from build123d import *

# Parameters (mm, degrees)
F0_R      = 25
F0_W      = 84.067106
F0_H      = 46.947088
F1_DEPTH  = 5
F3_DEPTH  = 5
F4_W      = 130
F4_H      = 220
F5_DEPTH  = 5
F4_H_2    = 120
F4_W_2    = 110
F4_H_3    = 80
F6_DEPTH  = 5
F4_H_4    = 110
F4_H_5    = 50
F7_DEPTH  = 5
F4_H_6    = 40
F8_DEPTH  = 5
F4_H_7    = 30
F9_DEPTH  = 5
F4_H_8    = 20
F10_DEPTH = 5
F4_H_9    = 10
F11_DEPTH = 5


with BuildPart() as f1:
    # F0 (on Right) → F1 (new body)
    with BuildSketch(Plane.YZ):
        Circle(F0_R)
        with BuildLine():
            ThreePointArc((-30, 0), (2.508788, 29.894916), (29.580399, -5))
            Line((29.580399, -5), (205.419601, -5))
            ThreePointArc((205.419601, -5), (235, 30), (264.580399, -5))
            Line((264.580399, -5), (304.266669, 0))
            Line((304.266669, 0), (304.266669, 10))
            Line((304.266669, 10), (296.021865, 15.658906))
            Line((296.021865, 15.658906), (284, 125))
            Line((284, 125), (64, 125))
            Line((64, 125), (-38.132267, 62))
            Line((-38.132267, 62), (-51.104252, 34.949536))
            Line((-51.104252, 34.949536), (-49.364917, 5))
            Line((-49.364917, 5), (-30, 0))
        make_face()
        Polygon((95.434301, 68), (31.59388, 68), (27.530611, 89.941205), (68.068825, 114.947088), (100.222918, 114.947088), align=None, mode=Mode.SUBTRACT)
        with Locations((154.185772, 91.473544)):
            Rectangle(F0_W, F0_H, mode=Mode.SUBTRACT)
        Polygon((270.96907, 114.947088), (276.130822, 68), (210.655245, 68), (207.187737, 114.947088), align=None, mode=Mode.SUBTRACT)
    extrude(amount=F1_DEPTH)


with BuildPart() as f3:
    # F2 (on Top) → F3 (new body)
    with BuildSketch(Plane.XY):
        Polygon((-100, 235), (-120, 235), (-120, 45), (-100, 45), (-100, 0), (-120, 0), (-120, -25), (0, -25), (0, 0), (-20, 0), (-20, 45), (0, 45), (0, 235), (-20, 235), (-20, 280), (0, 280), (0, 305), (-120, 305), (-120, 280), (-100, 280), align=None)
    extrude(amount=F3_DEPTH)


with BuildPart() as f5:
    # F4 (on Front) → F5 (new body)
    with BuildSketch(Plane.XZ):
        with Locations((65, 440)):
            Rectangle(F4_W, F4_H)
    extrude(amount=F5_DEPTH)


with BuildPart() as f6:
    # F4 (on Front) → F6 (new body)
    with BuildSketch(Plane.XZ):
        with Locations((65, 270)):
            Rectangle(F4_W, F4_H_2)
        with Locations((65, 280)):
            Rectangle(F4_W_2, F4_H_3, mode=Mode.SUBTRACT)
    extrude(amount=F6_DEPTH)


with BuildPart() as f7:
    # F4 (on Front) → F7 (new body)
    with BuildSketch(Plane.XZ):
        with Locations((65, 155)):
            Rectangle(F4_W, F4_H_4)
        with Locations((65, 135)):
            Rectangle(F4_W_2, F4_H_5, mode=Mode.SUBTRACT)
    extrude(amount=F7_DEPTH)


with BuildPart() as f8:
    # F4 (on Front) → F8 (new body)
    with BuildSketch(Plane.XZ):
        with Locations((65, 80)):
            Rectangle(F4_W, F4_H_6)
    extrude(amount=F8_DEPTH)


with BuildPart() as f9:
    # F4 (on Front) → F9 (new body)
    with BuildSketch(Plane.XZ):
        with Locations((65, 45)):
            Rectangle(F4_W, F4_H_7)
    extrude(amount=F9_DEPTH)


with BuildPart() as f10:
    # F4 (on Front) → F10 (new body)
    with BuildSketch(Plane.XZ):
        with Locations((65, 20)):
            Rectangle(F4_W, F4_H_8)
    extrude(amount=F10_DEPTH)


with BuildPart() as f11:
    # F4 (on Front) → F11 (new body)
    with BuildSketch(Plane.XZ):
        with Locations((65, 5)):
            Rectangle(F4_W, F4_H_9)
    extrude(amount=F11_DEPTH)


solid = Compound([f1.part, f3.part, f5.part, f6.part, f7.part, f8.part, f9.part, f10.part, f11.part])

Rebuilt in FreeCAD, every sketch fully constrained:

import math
import FreeCAD as App
import Part
import Sketcher

V = App.Vector
Q = App.Units.Quantity


def add_polygon(sketch, points):
    """Adds a closed chain of lines whose ends are joined by coincident constraints."""
    first, n = sketch.GeometryCount, len(points)
    for a, b in zip(points, points[1:] + points[:1]):
        sketch.addGeometry(Part.LineSegment(App.Vector(*a, 0), App.Vector(*b, 0)), False)
    for i in range(n):
        sketch.addConstraint(Sketcher.Constraint("Coincident", first + i, 2, first + (i + 1) % n, 1))

doc = App.newDocument("Part")
body = doc.addObject("PartDesign::Body", "Body")
body.AllowCompound = True

sketch1 = doc.addObject("Sketcher::SketchObject", "Sketch")
body.addObject(sketch1)
sketch1.AttachmentSupport = (doc.YZ_Plane, [""])
sketch1.MapMode = "FlatFace"
sketch1.addGeometry(Part.Circle(V(0, 0, 0), V(0, 0, 1), 25), False)
sketch1.addGeometry(Part.ArcOfCircle(Part.Circle(V(0, 0, 0), V(0, 0, 1), 30), math.radians(-10), math.radians(180)), False)
sketch1.addGeometry(Part.LineSegment(V(30, -5, 0), V(205, -5, 0)), False)
sketch1.addGeometry(Part.ArcOfCircle(Part.Circle(V(235, 0, 0), V(0, 0, 1), 30), math.radians(-10), math.radians(190)), False)
sketch1.addGeometry(Part.LineSegment(V(265, -5, 0), V(304, 0, 0)), False)
sketch1.addGeometry(Part.LineSegment(V(304, 0, 0), V(304, 10, 0)), False)
sketch1.addGeometry(Part.LineSegment(V(304, 10, 0), V(296, 16, 0)), False)
sketch1.addGeometry(Part.LineSegment(V(296, 16, 0), V(284, 125, 0)), False)
sketch1.addGeometry(Part.LineSegment(V(284, 125, 0), V(64, 125, 0)), False)
sketch1.addGeometry(Part.LineSegment(V(64, 125, 0), V(-38, 62, 0)), False)
sketch1.addGeometry(Part.LineSegment(V(-38, 62, 0), V(-51, 35, 0)), False)
sketch1.addGeometry(Part.LineSegment(V(-51, 35, 0), V(-49, 5, 0)), False)
sketch1.addGeometry(Part.LineSegment(V(-49, 5, 0), V(-30, 0, 0)), False)
add_polygon(sketch1, [(100, 115), (95, 68), (32, 68), (28, 90), (68, 115)])
add_polygon(sketch1, [(196, 68), (112, 68), (112, 115), (196, 115)])
add_polygon(sketch1, [(207, 115), (271, 115), (276, 68), (211, 68)])
sketch1.addConstraint([
    Sketcher.Constraint("Coincident", 1, 1, 2, 1),
    Sketcher.Constraint("Coincident", 2, 2, 3, 2),
    Sketcher.Constraint("Coincident", 3, 1, 4, 1),
    Sketcher.Constraint("Coincident", 4, 2, 5, 1),
    Sketcher.Constraint("Coincident", 5, 2, 6, 1),
    Sketcher.Constraint("Coincident", 6, 2, 7, 1),
    Sketcher.Constraint("Coincident", 7, 2, 8, 1),
    Sketcher.Constraint("Coincident", 8, 2, 9, 1),
    Sketcher.Constraint("Coincident", 9, 2, 10, 1),
    Sketcher.Constraint("Coincident", 10, 2, 11, 1),
    Sketcher.Constraint("Coincident", 11, 2, 12, 1),
    Sketcher.Constraint("Coincident", 12, 2, 1, 2),
    Sketcher.Constraint("Horizontal", 2),
    Sketcher.Constraint("Vertical", 5),
    Sketcher.Constraint("Horizontal", 8),
    Sketcher.Constraint("Horizontal", 14),
    Sketcher.Constraint("Horizontal", 17),
    Sketcher.Constraint("Horizontal", 18),
    Sketcher.Constraint("Vertical", 19),
    Sketcher.Constraint("Horizontal", 20),
    Sketcher.Constraint("Vertical", 21),
    Sketcher.Constraint("Horizontal", 22),
    Sketcher.Constraint("Horizontal", 24),
    Sketcher.Constraint("Coincident", 0, 3, -1, 1),
    Sketcher.Constraint("Coincident", 1, 3, -1, 1),
    Sketcher.Constraint("Equal", 1, 3),
    Sketcher.Constraint("PointOnObject", 3, 3, -1),
    Sketcher.Constraint("PointOnObject", 4, 2, -1),
    Sketcher.Constraint("PointOnObject", 12, 2, -1),
    Sketcher.Constraint("Parallel", 9, 16),
    Sketcher.Constraint("Parallel", 7, 23),
    Sketcher.Constraint("Horizontal", 2, 2, 3, 1),
    Sketcher.Constraint("Horizontal", 14, 2, 18, 2),
    Sketcher.Constraint("Horizontal", 17, 2, 19, 2),
    Sketcher.Constraint("Horizontal", 20, 2, 22, 2),
    Sketcher.Constraint("Horizontal", 21, 2, 23, 2),
    Sketcher.Constraint("Equal", 10, 11),
    Sketcher.Constraint("Diameter", 0, Q("50 mm")),
    Sketcher.Constraint("Radius", 1, Q("30 mm")),
    Sketcher.Constraint("DistanceX", 8, 2, 8, 1, Q("220 mm")),
    Sketcher.Constraint("DistanceY", 5, 1, 5, 2, Q("10 mm")),
    Sketcher.Constraint("Distance", 4, Q("40 mm")),
    Sketcher.Constraint("Distance", 6, Q("10.000001 mm")),
    Sketcher.Constraint("Distance", 7, Q("110 mm")),
    Sketcher.Constraint("Distance", 9, Q("120 mm")),
    Sketcher.Constraint("Distance", 10, Q("30 mm")),
    Sketcher.Constraint("Distance", 12, Q("20 mm")),
    Sketcher.Constraint("DistanceX", -1, 1, 3, 3, Q("235 mm")),
    Sketcher.Constraint("DistanceY", 1, 1, -1, 1, Q("5 mm")),
    Sketcher.Constraint("DistanceX", -1, 1, 7, 2, Q("284 mm")),
    Sketcher.Constraint("DistanceY", -1, 1, 7, 2, Q("125 mm")),
    Sketcher.Constraint("DistanceY", -1, 1, 9, 2, Q("62 mm")),
    Sketcher.Constraint("DistanceY", -1, 1, 11, 2, Q("5 mm")),
    Sketcher.Constraint("DistanceY", -1, 1, 13, 2, Q("68 mm")),
    Sketcher.Constraint("Distance", 23, Q("47.229998 mm")),
    Sketcher.Constraint("DistanceX", 14, 2, 14, 1, Q("63.840421 mm")),
    Sketcher.Constraint("DistanceX", -1, 1, 13, 2, Q("95.434301 mm")),
    Sketcher.Constraint("DistanceX", 17, 2, 18, 2, Q("11.929301 mm")),
    Sketcher.Constraint("DistanceX", 22, 2, 5, 2, Q("33.297599 mm")),
    Sketcher.Constraint("Distance", 15, Q("22.31427 mm")),
    Sketcher.Constraint("Distance", 25, Q("47.074969 mm")),
    Sketcher.Constraint("DistanceX", 17, 1, 17, 2, Q("32.154093 mm")),
    Sketcher.Constraint("DistanceX", 18, 2, 18, 1, Q("84.067106 mm")),
    Sketcher.Constraint("DistanceX", 22, 1, 22, 2, Q("63.781333 mm")),
    Sketcher.Constraint("DistanceX", -1, 1, 15, 2, Q("27.530611 mm")),
])
pad1 = doc.addObject("PartDesign::Pad", "Pad")
body.addObject(pad1)
pad1.Profile = sketch1
pad1.Length = 5
body2 = doc.addObject("PartDesign::Body", "Body001")

sketch2 = doc.addObject("Sketcher::SketchObject", "Sketch001")
body2.addObject(sketch2)
sketch2.AttachmentSupport = (doc.getObject("XY_Plane001"), [""])
sketch2.MapMode = "FlatFace"
add_polygon(sketch2, [(-100, 235), (-120, 235), (-120, 45), (-100, 45), (-100, 0), (-120, 0), (-120, -25), (0, -25), (0, 0), (-20, 0), (-20, 45), (0, 45), (0, 235), (-20, 235), (-20, 280), (0, 280), (0, 305), (-120, 305), (-120, 280), (-100, 280)])
sketch2.addConstraint([
    Sketcher.Constraint("Horizontal", 0),
    Sketcher.Constraint("Vertical", 1),
    Sketcher.Constraint("Horizontal", 2),
    Sketcher.Constraint("Vertical", 3),
    Sketcher.Constraint("Horizontal", 4),
    Sketcher.Constraint("Vertical", 5),
    Sketcher.Constraint("Horizontal", 6),
    Sketcher.Constraint("Vertical", 7),
    Sketcher.Constraint("Horizontal", 8),
    Sketcher.Constraint("Vertical", 9),
    Sketcher.Constraint("Horizontal", 10),
    Sketcher.Constraint("Vertical", 11),
    Sketcher.Constraint("Horizontal", 12),
    Sketcher.Constraint("Vertical", 13),
    Sketcher.Constraint("Horizontal", 14),
    Sketcher.Constraint("Vertical", 15),
    Sketcher.Constraint("Horizontal", 16),
    Sketcher.Constraint("Vertical", 17),
    Sketcher.Constraint("Horizontal", 18),
    Sketcher.Constraint("Vertical", 19),
    Sketcher.Constraint("Coincident", 7, 2, -1, 1),
    Sketcher.Constraint("PointOnObject", 3, 2, -1),
    Sketcher.Constraint("PointOnObject", 10, 2, -2),
    Sketcher.Constraint("PointOnObject", 14, 2, -2),
    Sketcher.Constraint("Horizontal", 2, 2, 9, 2),
    Sketcher.Constraint("Horizontal", 0, 2, 11, 2),
    Sketcher.Constraint("Horizontal", 14, 2, 17, 2),
    Sketcher.Constraint("Vertical", 1, 2, 4, 2),
    Sketcher.Constraint("Vertical", 9, 2, 12, 2),
    Sketcher.Constraint("Vertical", 5, 2, 16, 2),
    Sketcher.Constraint("Vertical", 3, 2, 18, 2),
    Sketcher.Constraint("Equal", 4, 8),
    Sketcher.Constraint("Equal", 9, 13),
    Sketcher.Constraint("Equal", 7, 15),
    Sketcher.Constraint("DistanceX", 0, 2, 0, 1, Q("20 mm")),
    Sketcher.Constraint("DistanceX", 6, 1, 6, 2, Q("120 mm")),
    Sketcher.Constraint("DistanceY", 1, 2, 1, 1, Q("190 mm")),
    Sketcher.Constraint("DistanceY", 3, 2, 3, 1, Q("45 mm")),
    Sketcher.Constraint("DistanceY", 5, 2, 5, 1, Q("25 mm")),
])
pad2 = doc.addObject("PartDesign::Pad", "Pad001")
body2.addObject(pad2)
pad2.Profile = sketch2
pad2.Length = 5
body3 = doc.addObject("PartDesign::Body", "Body002")

sketch3 = doc.addObject("Sketcher::SketchObject", "Sketch002")
body3.addObject(sketch3)
sketch3.AttachmentSupport = (doc.getObject("XZ_Plane002"), [""])
sketch3.MapMode = "FlatFace"
add_polygon(sketch3, [(0, 550), (0, 330), (130, 330), (130, 550)])
sketch3.addConstraint([
    Sketcher.Constraint("Vertical", 0),
    Sketcher.Constraint("Horizontal", 1),
    Sketcher.Constraint("Vertical", 2),
    Sketcher.Constraint("Horizontal", 3),
    Sketcher.Constraint("PointOnObject", 0, 2, -2),
    Sketcher.Constraint("DistanceX", 1, 1, 1, 2, Q("130 mm")),
    Sketcher.Constraint("DistanceY", 0, 2, 0, 1, Q("220 mm")),
    Sketcher.Constraint("DistanceY", -1, 1, 0, 2, Q("330 mm")),
])
pad3 = doc.addObject("PartDesign::Pad", "Pad002")
body3.addObject(pad3)
pad3.Profile = sketch3
pad3.Length = 5
body4 = doc.addObject("PartDesign::Body", "Body003")

sketch4 = doc.addObject("Sketcher::SketchObject", "Sketch003")
body4.addObject(sketch4)
sketch4.AttachmentSupport = (doc.getObject("XZ_Plane003"), [""])
sketch4.MapMode = "FlatFace"
add_polygon(sketch4, [(0, 330), (0, 210), (130, 210), (130, 330)])
add_polygon(sketch4, [(120, 240), (10, 240), (10, 320), (120, 320)])
sketch4.addConstraint([
    Sketcher.Constraint("Vertical", 0),
    Sketcher.Constraint("Horizontal", 1),
    Sketcher.Constraint("Vertical", 2),
    Sketcher.Constraint("Horizontal", 3),
    Sketcher.Constraint("Horizontal", 4),
    Sketcher.Constraint("Vertical", 5),
    Sketcher.Constraint("Horizontal", 6),
    Sketcher.Constraint("Vertical", 7),
    Sketcher.Constraint("PointOnObject", 0, 2, -2),
    Sketcher.Constraint("DistanceX", 1, 1, 1, 2, Q("130 mm")),
    Sketcher.Constraint("DistanceX", 4, 2, 4, 1, Q("110 mm")),
    Sketcher.Constraint("DistanceY", 0, 2, 0, 1, Q("120 mm")),
    Sketcher.Constraint("DistanceY", 5, 1, 5, 2, Q("80 mm")),
    Sketcher.Constraint("DistanceY", -1, 1, 0, 2, Q("210 mm")),
    Sketcher.Constraint("DistanceX", -1, 1, 4, 2, Q("10 mm")),
    Sketcher.Constraint("DistanceY", -1, 1, 4, 2, Q("240 mm")),
])
pad4 = doc.addObject("PartDesign::Pad", "Pad003")
body4.addObject(pad4)
pad4.Profile = sketch4
pad4.Length = 5
body5 = doc.addObject("PartDesign::Body", "Body004")

sketch5 = doc.addObject("Sketcher::SketchObject", "Sketch004")
body5.addObject(sketch5)
sketch5.AttachmentSupport = (doc.getObject("XZ_Plane004"), [""])
sketch5.MapMode = "FlatFace"
add_polygon(sketch5, [(0, 210), (0, 100), (130, 100), (130, 210)])
add_polygon(sketch5, [(120, 110), (10, 110), (10, 160), (120, 160)])
sketch5.addConstraint([
    Sketcher.Constraint("Vertical", 0),
    Sketcher.Constraint("Horizontal", 1),
    Sketcher.Constraint("Vertical", 2),
    Sketcher.Constraint("Horizontal", 3),
    Sketcher.Constraint("Horizontal", 4),
    Sketcher.Constraint("Vertical", 5),
    Sketcher.Constraint("Horizontal", 6),
    Sketcher.Constraint("Vertical", 7),
    Sketcher.Constraint("PointOnObject", 0, 2, -2),
    Sketcher.Constraint("Equal", 6, 0),
    Sketcher.Constraint("DistanceX", 1, 1, 1, 2, Q("130 mm")),
    Sketcher.Constraint("DistanceX", 4, 2, 4, 1, Q("110 mm")),
    Sketcher.Constraint("DistanceY", 5, 1, 5, 2, Q("50 mm")),
    Sketcher.Constraint("DistanceY", -1, 1, 0, 2, Q("100 mm")),
    Sketcher.Constraint("DistanceX", -1, 1, 4, 2, Q("10 mm")),
    Sketcher.Constraint("DistanceY", -1, 1, 4, 2, Q("110 mm")),
])
pad5 = doc.addObject("PartDesign::Pad", "Pad004")
body5.addObject(pad5)
pad5.Profile = sketch5
pad5.Length = 5
body6 = doc.addObject("PartDesign::Body", "Body005")

sketch6 = doc.addObject("Sketcher::SketchObject", "Sketch005")
body6.addObject(sketch6)
sketch6.AttachmentSupport = (doc.getObject("XZ_Plane005"), [""])
sketch6.MapMode = "FlatFace"
add_polygon(sketch6, [(0, 100), (0, 60), (130, 60), (130, 100)])
sketch6.addConstraint([
    Sketcher.Constraint("Vertical", 0),
    Sketcher.Constraint("Horizontal", 1),
    Sketcher.Constraint("Vertical", 2),
    Sketcher.Constraint("Horizontal", 3),
    Sketcher.Constraint("PointOnObject", 0, 2, -2),
    Sketcher.Constraint("DistanceX", 1, 1, 1, 2, Q("130 mm")),
    Sketcher.Constraint("DistanceY", 0, 2, 0, 1, Q("40 mm")),
    Sketcher.Constraint("DistanceY", -1, 1, 0, 2, Q("60 mm")),
])
pad6 = doc.addObject("PartDesign::Pad", "Pad005")
body6.addObject(pad6)
pad6.Profile = sketch6
pad6.Length = 5
body7 = doc.addObject("PartDesign::Body", "Body006")

sketch7 = doc.addObject("Sketcher::SketchObject", "Sketch006")
body7.addObject(sketch7)
sketch7.AttachmentSupport = (doc.getObject("XZ_Plane006"), [""])
sketch7.MapMode = "FlatFace"
add_polygon(sketch7, [(0, 60), (0, 30), (130, 30), (130, 60)])
sketch7.addConstraint([
    Sketcher.Constraint("Vertical", 0),
    Sketcher.Constraint("Horizontal", 1),
    Sketcher.Constraint("Vertical", 2),
    Sketcher.Constraint("Horizontal", 3),
    Sketcher.Constraint("PointOnObject", 0, 2, -2),
    Sketcher.Constraint("DistanceX", 1, 1, 1, 2, Q("130 mm")),
    Sketcher.Constraint("DistanceY", 0, 2, 0, 1, Q("30 mm")),
    Sketcher.Constraint("DistanceY", -1, 1, 0, 2, Q("30 mm")),
])
pad7 = doc.addObject("PartDesign::Pad", "Pad006")
body7.addObject(pad7)
pad7.Profile = sketch7
pad7.Length = 5
body8 = doc.addObject("PartDesign::Body", "Body007")

sketch8 = doc.addObject("Sketcher::SketchObject", "Sketch007")
body8.addObject(sketch8)
sketch8.AttachmentSupport = (doc.getObject("XZ_Plane007"), [""])
sketch8.MapMode = "FlatFace"
add_polygon(sketch8, [(0, 30), (0, 10), (130, 10), (130, 30)])
sketch8.addConstraint([
    Sketcher.Constraint("Vertical", 0),
    Sketcher.Constraint("Horizontal", 1),
    Sketcher.Constraint("Vertical", 2),
    Sketcher.Constraint("Horizontal", 3),
    Sketcher.Constraint("PointOnObject", 0, 2, -2),
    Sketcher.Constraint("DistanceX", 1, 1, 1, 2, Q("130 mm")),
    Sketcher.Constraint("DistanceY", 0, 2, 0, 1, Q("20 mm")),
    Sketcher.Constraint("DistanceY", -1, 1, 0, 2, Q("10 mm")),
])
pad8 = doc.addObject("PartDesign::Pad", "Pad007")
body8.addObject(pad8)
pad8.Profile = sketch8
pad8.Length = 5
body9 = doc.addObject("PartDesign::Body", "Body008")

sketch9 = doc.addObject("Sketcher::SketchObject", "Sketch008")
body9.addObject(sketch9)
sketch9.AttachmentSupport = (doc.getObject("XZ_Plane008"), [""])
sketch9.MapMode = "FlatFace"
add_polygon(sketch9, [(0, 10), (0, 0), (130, 0), (130, 10)])
sketch9.addConstraint([
    Sketcher.Constraint("Vertical", 0),
    Sketcher.Constraint("Horizontal", 1),
    Sketcher.Constraint("Vertical", 2),
    Sketcher.Constraint("Horizontal", 3),
    Sketcher.Constraint("Coincident", 0, 2, -1, 1),
    Sketcher.Constraint("DistanceX", 1, 1, 1, 2, Q("130 mm")),
    Sketcher.Constraint("DistanceY", 0, 2, 0, 1, Q("10 mm")),
])
pad9 = doc.addObject("PartDesign::Pad", "Pad008")
body9.addObject(pad9)
pad9.Profile = sketch9
pad9.Length = 5

doc.recompute()
